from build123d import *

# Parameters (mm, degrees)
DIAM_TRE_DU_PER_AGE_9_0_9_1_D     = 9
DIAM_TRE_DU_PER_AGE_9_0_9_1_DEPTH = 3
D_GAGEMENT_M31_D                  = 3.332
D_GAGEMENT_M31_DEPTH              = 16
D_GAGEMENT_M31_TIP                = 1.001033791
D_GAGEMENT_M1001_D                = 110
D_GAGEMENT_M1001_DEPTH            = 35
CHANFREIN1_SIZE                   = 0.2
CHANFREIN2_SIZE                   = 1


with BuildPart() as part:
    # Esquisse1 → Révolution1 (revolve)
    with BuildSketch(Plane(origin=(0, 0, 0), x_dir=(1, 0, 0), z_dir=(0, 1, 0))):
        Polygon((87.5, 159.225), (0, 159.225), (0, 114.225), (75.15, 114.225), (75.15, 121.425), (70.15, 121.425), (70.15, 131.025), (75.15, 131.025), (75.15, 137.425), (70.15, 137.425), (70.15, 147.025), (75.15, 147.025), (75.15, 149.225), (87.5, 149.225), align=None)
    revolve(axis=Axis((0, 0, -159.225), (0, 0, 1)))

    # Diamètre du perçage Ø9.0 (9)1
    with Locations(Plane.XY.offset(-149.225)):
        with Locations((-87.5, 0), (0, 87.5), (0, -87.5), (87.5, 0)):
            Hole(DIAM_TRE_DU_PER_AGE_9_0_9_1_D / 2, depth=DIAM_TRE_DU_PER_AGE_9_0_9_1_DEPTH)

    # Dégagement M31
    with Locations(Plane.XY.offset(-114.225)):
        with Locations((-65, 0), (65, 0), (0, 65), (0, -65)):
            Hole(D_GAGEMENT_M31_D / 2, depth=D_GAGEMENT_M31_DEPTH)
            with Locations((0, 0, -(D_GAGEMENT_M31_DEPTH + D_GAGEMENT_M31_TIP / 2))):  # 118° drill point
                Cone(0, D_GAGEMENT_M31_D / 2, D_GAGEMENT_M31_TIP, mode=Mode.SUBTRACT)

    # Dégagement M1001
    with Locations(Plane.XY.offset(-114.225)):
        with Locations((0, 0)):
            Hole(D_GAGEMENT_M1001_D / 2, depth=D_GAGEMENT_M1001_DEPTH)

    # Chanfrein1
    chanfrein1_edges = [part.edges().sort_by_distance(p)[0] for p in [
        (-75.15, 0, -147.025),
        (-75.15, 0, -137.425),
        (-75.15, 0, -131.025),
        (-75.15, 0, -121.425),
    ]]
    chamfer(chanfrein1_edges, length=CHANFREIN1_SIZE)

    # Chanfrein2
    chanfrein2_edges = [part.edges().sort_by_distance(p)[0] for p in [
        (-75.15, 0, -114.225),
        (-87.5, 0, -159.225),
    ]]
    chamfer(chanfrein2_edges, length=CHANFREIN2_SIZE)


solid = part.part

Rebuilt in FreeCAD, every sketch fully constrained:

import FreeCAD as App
import Part
import Sketcher
from FreeCAD import Vector
Q = App.Units.Quantity


def edges_at(feature, points):
    """Names of the edges that pass closest to the given points."""
    edges = feature.Shape.Edges
    near = lambda p: min(range(len(edges)), key=lambda i: edges[i].distToShape(Part.Vertex(*p))[0])
    return sorted({f"Edge{near(p) + 1}" for p in points})


def add_polygon(sketch, points):
    """Adds a closed chain of lines whose ends are joined by coincident constraints."""
    first, n = sketch.GeometryCount, len(points)
    for a, b in zip(points, points[1:] + points[:1]):
        sketch.addGeometry(Part.LineSegment(App.Vector(*a, 0), App.Vector(*b, 0)), False)
    for i in range(n):
        sketch.addConstraint(Sketcher.Constraint("Coincident", first + i, 2, first + (i + 1) % n, 1))

doc = App.newDocument("Part")
body = doc.addObject("PartDesign::Body", "Body")

sketch1 = body.newObject("Sketcher::SketchObject", "Sketch")
sketch1.AttachmentSupport = (doc.getObject("XZ_Plane"), [""])
sketch1.MapMode = "FlatFace"
add_polygon(sketch1, [(87.5, -159.2), (0, -159.2), (0, -114.2), (75.2, -114.2), (75.2, -121.4), (70.2, -121.4), (70.2, -131), (75.2, -131), (75.2, -137.4), (70.2, -137.4), (70.2, -147), (75.2, -147), (75.2, -149.2), (87.5, -149.2)])
sketch1.addConstraint([
    Sketcher.Constraint("Horizontal", 0),
    Sketcher.Constraint("Vertical", 1),
    Sketcher.Constraint("Horizontal", 2),
    Sketcher.Constraint("Vertical", 3),
    Sketcher.Constraint("Horizontal", 4),
    Sketcher.Constraint("Vertical", 5),
    Sketcher.Constraint("Horizontal", 6),
    Sketcher.Constraint("Vertical", 7),
    Sketcher.Constraint("Horizontal", 8),
    Sketcher.Constraint("Vertical", 9),
    Sketcher.Constraint("Horizontal", 10),
    Sketcher.Constraint("Vertical", 11),
    Sketcher.Constraint("Horizontal", 12),
    Sketcher.Constraint("Vertical", 13),
    Sketcher.Constraint("PointOnObject", 0, 2, -2),
    Sketcher.Constraint("Vertical", 3, 2, 6, 2),
    Sketcher.Constraint("Vertical", 5, 2, 8, 2),
    Sketcher.Constraint("Vertical", 7, 2, 10, 2),
    Sketcher.Constraint("Equal", 5, 9),
    Sketcher.Constraint("DistanceX", 4, 2, 4, 1, Q("5 mm")),
    Sketcher.Constraint("DistanceY", 1, 1, 1, 2, Q("45 mm")),
    Sketcher.Constraint("DistanceY", 13, 2, 13, 1, Q("10 mm")),
    Sketcher.Constraint("DistanceX", 0, 2, 0, 1, Q("87.5 mm")),
    Sketcher.Constraint("DistanceY", 3, 2, 3, 1, Q("7.2 mm")),
    Sketcher.Constraint("DistanceY", 5, 2, 5, 1, Q("9.6 mm")),
    Sketcher.Constraint("DistanceY", 7, 2, 7, 1, Q("6.4 mm")),
    Sketcher.Constraint("DistanceX", 2, 1, 2, 2, Q("75.15 mm")),
    Sketcher.Constraint("DistanceY", 0, 2, -1, 1, Q("159.225 mm")),
])
revolution = body.newObject("PartDesign::Revolution", "Revolution")
revolution.Profile = sketch1
revolution.ReferenceAxis = (sketch1, ["V_Axis"])
revolution.Angle = 360

sketch2 = body.newObject("Sketcher::SketchObject", "Sketch001")
sketch2.AttachmentSupport = (doc.getObject("XY_Plane"), [""])
sketch2.MapMode = "FlatFace"
sketch2.AttachmentOffset = App.Placement(Vector(0, 0, -149.225), App.Rotation())
sketch2.addGeometry([
    Part.Circle(Vector(-87.5, 0, 0), Vector(0, 0, 1), 4.5),
    Part.Circle(Vector(0, 87.5, 0), Vector(0, 0, 1), 4.5),
    Part.Circle(Vector(0, -87.5, 0), Vector(0, 0, 1), 4.5),
    Part.Circle(Vector(87.5, 0, 0), Vector(0, 0, 1), 4.5),
], False)
sketch2.addConstraint([
    Sketcher.Constraint("Equal", 0, 1),
    Sketcher.Constraint("Equal", 1, 2),
    Sketcher.Constraint("Equal", 2, 3),
    Sketcher.Constraint("Symmetric", 1, 3, 2, 3, -1, 1),
    Sketcher.Constraint("Symmetric", 0, 3, 3, 3, -1, 1),
    Sketcher.Constraint("PointOnObject", 0, 3, -1),
    Sketcher.Constraint("PointOnObject", 1, 3, -2),
    Sketcher.Constraint("Diameter", 0, Q("9 mm")),
    Sketcher.Constraint("DistanceY", 2, 3, 1, 3, Q("175 mm")),
    Sketcher.Constraint("DistanceX", 0, 3, 3, 3, Q("175 mm")),
])
doc.recompute()
hole = body.newObject("PartDesign::Hole", "Hole")
hole.Profile = sketch2
hole.ThreadType = "None"
hole.Diameter = 9
hole.DepthType = "Dimension"
hole.Depth = 3
hole.DrillPoint = "Flat"

sketch3 = body.newObject("Sketcher::SketchObject", "Sketch002")
sketch3.AttachmentSupport = (doc.getObject("XY_Plane"), [""])
sketch3.MapMode = "FlatFace"
sketch3.AttachmentOffset = App.Placement(Vector(0, 0, -114.225), App.Rotation())
sketch3.addGeometry([
    Part.Circle(Vector(-65, 0, 0), Vector(0, 0, 1), 1.7),
    Part.Circle(Vector(65, 0, 0), Vector(0, 0, 1), 1.7),
    Part.Circle(Vector(0, 65, 0), Vector(0, 0, 1), 1.7),
    Part.Circle(Vector(0, -65, 0), Vector(0, 0, 1), 1.7),
], False)
sketch3.addConstraint([
    Sketcher.Constraint("Equal", 0, 1),
    Sketcher.Constraint("Equal", 1, 2),
    Sketcher.Constraint("Equal", 2, 3),
    Sketcher.Constraint("Symmetric", 0, 3, 1, 3, -1, 1),
    Sketcher.Constraint("Symmetric", 2, 3, 3, 3, -1, 1),
    Sketcher.Constraint("PointOnObject", 0, 3, -1),
    Sketcher.Constraint("PointOnObject", 2, 3, -2),
    Sketcher.Constraint("Diameter", 0, Q("3.332 mm")),
    Sketcher.Constraint("DistanceX", 0, 3, -1, 1, Q("65 mm")),
    Sketcher.Constraint("DistanceY", -1, 1, 2, 3, Q("65 mm")),
])
doc.recompute()
hole2 = body.newObject("PartDesign::Hole", "Hole001")
hole2.Profile = sketch3
hole2.ThreadType = "None"
hole2.Diameter = 3.332
hole2.DepthType = "Dimension"
hole2.Depth = 16
hole2.DrillPoint = "Angled"
hole2.DrillPointAngle = 118

sketch4 = body.newObject("Sketcher::SketchObject", "Sketch003")
sketch4.AttachmentSupport = (doc.getObject("XY_Plane"), [""])
sketch4.MapMode = "FlatFace"
sketch4.AttachmentOffset = App.Placement(Vector(0, 0, -114.225), App.Rotation())
sketch4.addGeometry(Part.Circle(Vector(0, 0, 0), Vector(0, 0, 1), 55), False)
sketch4.addConstraint([
    Sketcher.Constraint("Coincident", 0, 3, -1, 1),
    Sketcher.Constraint("Diameter", 0, Q("110 mm")),
])
doc.recompute()
hole3 = body.newObject("PartDesign::Hole", "Hole002")
hole3.Profile = sketch4
hole3.ThreadType = "None"
hole3.Diameter = 110
hole3.DepthType = "Dimension"
hole3.Depth = 35
hole3.DrillPoint = "Flat"
doc.recompute()

chamfer = body.newObject("PartDesign::Chamfer", "Chamfer")
chamfer.Base = (hole3, edges_at(hole3, [
    (-75.15, 0, -147.025),
    (-75.15, 0, -137.425),
    (-75.15, 0, -131.025),
    (-75.15, 0, -121.425),
]))
chamfer.Size = 0.2
doc.recompute()

chamfer2 = body.newObject("PartDesign::Chamfer", "Chamfer001")
chamfer2.Base = (chamfer, edges_at(chamfer, [(-75.15, 0, -114.225), (-87.5, 0, -159.225)]))
chamfer2.Size = 1

doc.recompute()
